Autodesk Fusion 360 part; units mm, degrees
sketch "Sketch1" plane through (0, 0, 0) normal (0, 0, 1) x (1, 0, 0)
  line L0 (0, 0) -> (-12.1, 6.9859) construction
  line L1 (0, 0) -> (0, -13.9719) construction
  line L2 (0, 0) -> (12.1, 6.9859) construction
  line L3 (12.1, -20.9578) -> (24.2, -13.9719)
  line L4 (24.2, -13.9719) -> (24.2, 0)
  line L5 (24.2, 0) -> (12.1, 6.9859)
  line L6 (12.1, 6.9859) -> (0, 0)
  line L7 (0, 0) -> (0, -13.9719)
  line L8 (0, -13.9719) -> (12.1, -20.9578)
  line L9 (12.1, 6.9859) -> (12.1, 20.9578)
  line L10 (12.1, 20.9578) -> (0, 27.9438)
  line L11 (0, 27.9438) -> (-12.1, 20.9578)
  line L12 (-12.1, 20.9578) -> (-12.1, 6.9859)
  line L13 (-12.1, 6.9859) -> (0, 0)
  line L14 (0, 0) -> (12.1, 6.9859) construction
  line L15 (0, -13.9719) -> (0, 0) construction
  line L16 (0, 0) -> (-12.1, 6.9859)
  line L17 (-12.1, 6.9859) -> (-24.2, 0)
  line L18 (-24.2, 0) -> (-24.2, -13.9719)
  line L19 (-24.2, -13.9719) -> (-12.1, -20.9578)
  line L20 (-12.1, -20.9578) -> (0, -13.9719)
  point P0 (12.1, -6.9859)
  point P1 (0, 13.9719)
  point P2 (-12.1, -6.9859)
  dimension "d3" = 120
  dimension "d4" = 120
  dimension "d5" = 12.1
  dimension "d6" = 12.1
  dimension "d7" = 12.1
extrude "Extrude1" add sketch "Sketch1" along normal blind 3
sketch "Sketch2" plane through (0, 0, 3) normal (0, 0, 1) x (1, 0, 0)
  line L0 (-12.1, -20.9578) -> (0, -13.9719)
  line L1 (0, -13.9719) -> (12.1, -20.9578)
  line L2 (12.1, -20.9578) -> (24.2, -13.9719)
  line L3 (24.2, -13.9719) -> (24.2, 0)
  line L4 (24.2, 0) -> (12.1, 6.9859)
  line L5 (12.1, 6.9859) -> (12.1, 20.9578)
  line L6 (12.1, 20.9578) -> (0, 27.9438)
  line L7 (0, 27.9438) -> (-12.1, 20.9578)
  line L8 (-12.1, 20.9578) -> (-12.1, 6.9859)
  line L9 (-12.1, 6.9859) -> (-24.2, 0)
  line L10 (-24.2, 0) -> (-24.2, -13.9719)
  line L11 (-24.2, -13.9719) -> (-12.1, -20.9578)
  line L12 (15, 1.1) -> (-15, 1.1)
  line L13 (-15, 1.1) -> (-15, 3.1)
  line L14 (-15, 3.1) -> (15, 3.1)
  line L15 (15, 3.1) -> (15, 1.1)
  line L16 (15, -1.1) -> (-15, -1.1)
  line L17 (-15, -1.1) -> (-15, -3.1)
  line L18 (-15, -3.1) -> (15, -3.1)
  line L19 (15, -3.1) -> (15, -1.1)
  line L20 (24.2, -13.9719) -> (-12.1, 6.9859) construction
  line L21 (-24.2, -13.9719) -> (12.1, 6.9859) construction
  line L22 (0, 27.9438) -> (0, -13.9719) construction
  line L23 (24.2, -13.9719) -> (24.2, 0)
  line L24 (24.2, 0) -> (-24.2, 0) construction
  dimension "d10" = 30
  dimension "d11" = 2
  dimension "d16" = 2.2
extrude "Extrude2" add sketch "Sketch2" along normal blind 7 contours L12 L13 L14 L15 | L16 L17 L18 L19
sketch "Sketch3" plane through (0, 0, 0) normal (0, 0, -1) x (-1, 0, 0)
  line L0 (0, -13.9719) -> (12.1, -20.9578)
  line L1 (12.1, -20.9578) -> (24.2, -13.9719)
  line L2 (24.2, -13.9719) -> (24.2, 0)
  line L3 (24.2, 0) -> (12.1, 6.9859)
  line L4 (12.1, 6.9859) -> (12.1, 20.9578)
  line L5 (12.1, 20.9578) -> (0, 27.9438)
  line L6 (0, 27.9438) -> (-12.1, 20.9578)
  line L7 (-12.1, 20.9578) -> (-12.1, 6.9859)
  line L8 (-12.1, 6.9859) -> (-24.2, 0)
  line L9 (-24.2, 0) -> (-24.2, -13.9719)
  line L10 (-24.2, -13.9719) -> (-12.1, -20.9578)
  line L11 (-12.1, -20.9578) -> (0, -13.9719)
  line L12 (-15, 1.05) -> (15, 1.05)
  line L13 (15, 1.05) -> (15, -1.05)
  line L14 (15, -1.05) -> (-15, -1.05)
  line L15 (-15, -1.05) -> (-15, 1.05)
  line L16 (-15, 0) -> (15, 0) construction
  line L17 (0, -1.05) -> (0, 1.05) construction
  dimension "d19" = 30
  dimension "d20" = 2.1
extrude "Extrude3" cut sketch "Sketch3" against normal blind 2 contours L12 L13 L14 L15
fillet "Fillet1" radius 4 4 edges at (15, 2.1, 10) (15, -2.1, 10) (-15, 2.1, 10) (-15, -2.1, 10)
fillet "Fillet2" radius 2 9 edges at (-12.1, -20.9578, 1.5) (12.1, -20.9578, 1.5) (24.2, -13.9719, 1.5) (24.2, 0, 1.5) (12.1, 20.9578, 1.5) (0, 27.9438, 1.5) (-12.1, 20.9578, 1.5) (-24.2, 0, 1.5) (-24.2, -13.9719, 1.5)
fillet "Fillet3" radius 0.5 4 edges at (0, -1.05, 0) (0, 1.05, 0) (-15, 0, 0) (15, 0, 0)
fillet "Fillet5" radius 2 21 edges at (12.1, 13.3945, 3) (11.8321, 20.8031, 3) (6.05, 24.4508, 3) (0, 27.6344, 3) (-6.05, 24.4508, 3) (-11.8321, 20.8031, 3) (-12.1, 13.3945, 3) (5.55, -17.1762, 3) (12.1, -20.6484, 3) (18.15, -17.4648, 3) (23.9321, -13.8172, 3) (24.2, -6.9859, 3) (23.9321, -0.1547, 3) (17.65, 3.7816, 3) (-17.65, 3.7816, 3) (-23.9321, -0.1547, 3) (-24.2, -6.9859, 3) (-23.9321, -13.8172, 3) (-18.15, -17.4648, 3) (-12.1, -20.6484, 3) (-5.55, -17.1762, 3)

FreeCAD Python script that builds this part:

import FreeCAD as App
import Part
import Sketcher
Q = App.Units.Quantity


def edges_at(feature, points):
    """Names of the edges that pass closest to the given points."""
    edges = feature.Shape.Edges
    near = lambda p: min(range(len(edges)), key=lambda i: edges[i].distToShape(Part.Vertex(*p))[0])
    return sorted({f"Edge{near(p) + 1}" for p in points})


def add_polygon(sketch, points):
    """Adds a closed chain of lines whose ends are joined by coincident constraints."""
    first, n = sketch.GeometryCount, len(points)
    for a, b in zip(points, points[1:] + points[:1]):
        sketch.addGeometry(Part.LineSegment(App.Vector(*a, 0), App.Vector(*b, 0)), False)
    for i in range(n):
        sketch.addConstraint(Sketcher.Constraint("Coincident", first + i, 2, first + (i + 1) % n, 1))

doc = App.newDocument("Part")
body = doc.addObject("PartDesign::Body", "Body")

sketch1 = doc.addObject("Sketcher::SketchObject", "Sketch")
body.addObject(sketch1)
sketch1.AttachmentSupport = (doc.XY_Plane, [""])
sketch1.MapMode = "FlatFace"
add_polygon(sketch1, [(0, -14), (12, -21), (24, -14), (24, 0), (12, 7), (12, 21), (0, 28), (-12, 21), (-12, 7), (-24, 0), (-24, -14), (-12, -21)])
sketch1.addConstraint([
    Sketcher.Constraint("Vertical", 2),
    Sketcher.Constraint("Vertical", 4),
    Sketcher.Constraint("Vertical", 7),
    Sketcher.Constraint("Vertical", 9),
    Sketcher.Constraint("Symmetric", 0, 2, 6, 2, -1, 1),
    Sketcher.Constraint("Symmetric", 2, 2, 8, 2, -1, 1),
    Sketcher.Constraint("Symmetric", 4, 2, 10, 2, -1, 1),
    Sketcher.Constraint("Symmetric", 4, 2, 6, 2, -2),
    Sketcher.Constraint("PointOnObject", 2, 2, -1),
    Sketcher.Constraint("PointOnObject", 5, 2, -2),
    Sketcher.Constraint("PointOnObject", 11, 2, -2),
    Sketcher.Constraint("Parallel", 0, 3),
    Sketcher.Constraint("Parallel", 3, 5),
    Sketcher.Constraint("Parallel", 1, 6),
    Sketcher.Constraint("Parallel", 6, 8),
    Sketcher.Constraint("Parallel", 5, 10),
    Sketcher.Constraint("Horizontal", 9, 2, 11, 2),
    Sketcher.Constraint("DistanceX", -1, 1, 0, 2, 12.1),
    Sketcher.Constraint("Angle", 0, Q("-29.9999 deg")),
    Sketcher.Constraint("DistanceY", 2, 1, 2, 2, 13.972),
])
pad1 = doc.addObject("PartDesign::Pad", "Pad")
body.addObject(pad1)
pad1.Profile = sketch1
pad1.Length = 3

sketch2 = doc.addObject("Sketcher::SketchObject", "Sketch001")
body.addObject(sketch2)
sketch2.AttachmentSupport = (doc.XY_Plane, [""])
sketch2.MapMode = "FlatFace"
sketch2.AttachmentOffset = App.Placement(App.Vector(0, 0, 3), App.Rotation())
add_polygon(sketch2, [(-15, 1.1), (15, 1.1), (15, 3.1), (-15, 3.1)])
add_polygon(sketch2, [(15, -3.1), (15, -1.1), (-15, -1.1), (-15, -3.1)])
sketch2.addConstraint([
    Sketcher.Constraint("Horizontal", 0),
    Sketcher.Constraint("Vertical", 1),
    Sketcher.Constraint("Horizontal", 2),
    Sketcher.Constraint("Vertical", 3),
    Sketcher.Constraint("Vertical", 4),
    Sketcher.Constraint("Horizontal", 5),
    Sketcher.Constraint("Vertical", 6),
    Sketcher.Constraint("Horizontal", 7),
    Sketcher.Constraint("Symmetric", 3, 2, 4, 2, -1, 1),
    Sketcher.Constraint("Symmetric", 1, 2, 6, 2, -1, 1),
    Sketcher.Constraint("Vertical", 1, 2, 4, 2),
    Sketcher.Constraint("DistanceX", 0, 1, 0, 2, 30.0),
    Sketcher.Constraint("DistanceY", 1, 1, 1, 2, 2.0),
    Sketcher.Constraint("DistanceY", 4, 2, 0, 2, 2.2),
])
pad2 = doc.addObject("PartDesign::Pad", "Pad001")
body.addObject(pad2)
pad2.Profile = sketch2
pad2.Length = 7

sketch3 = doc.addObject("Sketcher::SketchObject", "Sketch002")
body.addObject(sketch3)
sketch3.AttachmentSupport = (doc.XY_Plane, [""])
sketch3.MapMode = "FlatFace"
add_polygon(sketch3, [(-15, 1.1), (15, 1.1), (15, -1.1), (-15, -1.1)])
sketch3.addConstraint([
    Sketcher.Constraint("Horizontal", 0),
    Sketcher.Constraint("Vertical", 1),
    Sketcher.Constraint("Horizontal", 2),
    Sketcher.Constraint("Vertical", 3),
    Sketcher.Constraint("Symmetric", 0, 2, 2, 2, -1, 1),
    Sketcher.Constraint("DistanceX", 0, 1, 0, 2, 30.0),
    Sketcher.Constraint("DistanceY", 1, 2, 1, 1, 2.1),
])
pocket1 = doc.addObject("PartDesign::Pocket", "Pocket")
body.addObject(pocket1)
pocket1.Profile = sketch3
pocket1.Length = 2
pocket1.Reversed = True
doc.recompute()

fillet = doc.addObject("PartDesign::Fillet", "Fillet")
body.addObject(fillet)
fillet.Base = (pocket1, edges_at(pocket1, [
    (15, 2.1, 10),
    (15, -2.1, 10),
    (-15, 2.1, 10),
    (-15, -2.1, 10),
]))
fillet.Radius = 4
doc.recompute()

fillet2 = doc.addObject("PartDesign::Fillet", "Fillet001")
body.addObject(fillet2)
fillet2.Base = (fillet, edges_at(fillet, [
    (-12.1, -20.958, 1.5),
    (12.1, -20.958, 1.5),
    (24.2, -13.972, 1.5),
    (24.2, 0, 1.5),
    (12.1, 20.958, 1.5),
    (0, 27.944, 1.5),
    (-12.1, 20.958, 1.5),
    (-24.2, 0, 1.5),
    (-24.2, -13.972, 1.5),
]))
fillet2.Radius = 2
doc.recompute()

fillet3 = doc.addObject("PartDesign::Fillet", "Fillet002")
body.addObject(fillet3)
fillet3.Base = (fillet2, edges_at(fillet2, [
    (0, -1.05, 0),
    (0, 1.05, 0),
    (-15, 0, 0),
    (15, 0, 0),
]))
fillet3.Radius = 0.5
doc.recompute()

fillet4 = doc.addObject("PartDesign::Fillet", "Fillet003")
body.addObject(fillet4)
fillet4.Base = (fillet3, edges_at(fillet3, [
    (12.1, 13.395, 3),
    (11.832, 20.803, 3),
    (6.05, 24.451, 3),
    (0, 27.634, 3),
    (-6.05, 24.451, 3),
    (-11.832, 20.803, 3),
    (-12.1, 13.395, 3),
    (5.55, -17.176, 3),
    (12.1, -20.648, 3),
    (18.15, -17.465, 3),
    (23.932, -13.817, 3),
    (24.2, -6.986, 3),
    (23.932, -0.155, 3),
    (17.65, 3.782, 3),
    (-17.65, 3.782, 3),
    (-23.932, -0.155, 3),
    (-24.2, -6.986, 3),
    (-23.932, -13.817, 3),
    (-18.15, -17.465, 3),
    (-12.1, -20.648, 3),
    (-5.55, -17.176, 3),
]))
fillet4.Radius = 2

doc.recompute()
